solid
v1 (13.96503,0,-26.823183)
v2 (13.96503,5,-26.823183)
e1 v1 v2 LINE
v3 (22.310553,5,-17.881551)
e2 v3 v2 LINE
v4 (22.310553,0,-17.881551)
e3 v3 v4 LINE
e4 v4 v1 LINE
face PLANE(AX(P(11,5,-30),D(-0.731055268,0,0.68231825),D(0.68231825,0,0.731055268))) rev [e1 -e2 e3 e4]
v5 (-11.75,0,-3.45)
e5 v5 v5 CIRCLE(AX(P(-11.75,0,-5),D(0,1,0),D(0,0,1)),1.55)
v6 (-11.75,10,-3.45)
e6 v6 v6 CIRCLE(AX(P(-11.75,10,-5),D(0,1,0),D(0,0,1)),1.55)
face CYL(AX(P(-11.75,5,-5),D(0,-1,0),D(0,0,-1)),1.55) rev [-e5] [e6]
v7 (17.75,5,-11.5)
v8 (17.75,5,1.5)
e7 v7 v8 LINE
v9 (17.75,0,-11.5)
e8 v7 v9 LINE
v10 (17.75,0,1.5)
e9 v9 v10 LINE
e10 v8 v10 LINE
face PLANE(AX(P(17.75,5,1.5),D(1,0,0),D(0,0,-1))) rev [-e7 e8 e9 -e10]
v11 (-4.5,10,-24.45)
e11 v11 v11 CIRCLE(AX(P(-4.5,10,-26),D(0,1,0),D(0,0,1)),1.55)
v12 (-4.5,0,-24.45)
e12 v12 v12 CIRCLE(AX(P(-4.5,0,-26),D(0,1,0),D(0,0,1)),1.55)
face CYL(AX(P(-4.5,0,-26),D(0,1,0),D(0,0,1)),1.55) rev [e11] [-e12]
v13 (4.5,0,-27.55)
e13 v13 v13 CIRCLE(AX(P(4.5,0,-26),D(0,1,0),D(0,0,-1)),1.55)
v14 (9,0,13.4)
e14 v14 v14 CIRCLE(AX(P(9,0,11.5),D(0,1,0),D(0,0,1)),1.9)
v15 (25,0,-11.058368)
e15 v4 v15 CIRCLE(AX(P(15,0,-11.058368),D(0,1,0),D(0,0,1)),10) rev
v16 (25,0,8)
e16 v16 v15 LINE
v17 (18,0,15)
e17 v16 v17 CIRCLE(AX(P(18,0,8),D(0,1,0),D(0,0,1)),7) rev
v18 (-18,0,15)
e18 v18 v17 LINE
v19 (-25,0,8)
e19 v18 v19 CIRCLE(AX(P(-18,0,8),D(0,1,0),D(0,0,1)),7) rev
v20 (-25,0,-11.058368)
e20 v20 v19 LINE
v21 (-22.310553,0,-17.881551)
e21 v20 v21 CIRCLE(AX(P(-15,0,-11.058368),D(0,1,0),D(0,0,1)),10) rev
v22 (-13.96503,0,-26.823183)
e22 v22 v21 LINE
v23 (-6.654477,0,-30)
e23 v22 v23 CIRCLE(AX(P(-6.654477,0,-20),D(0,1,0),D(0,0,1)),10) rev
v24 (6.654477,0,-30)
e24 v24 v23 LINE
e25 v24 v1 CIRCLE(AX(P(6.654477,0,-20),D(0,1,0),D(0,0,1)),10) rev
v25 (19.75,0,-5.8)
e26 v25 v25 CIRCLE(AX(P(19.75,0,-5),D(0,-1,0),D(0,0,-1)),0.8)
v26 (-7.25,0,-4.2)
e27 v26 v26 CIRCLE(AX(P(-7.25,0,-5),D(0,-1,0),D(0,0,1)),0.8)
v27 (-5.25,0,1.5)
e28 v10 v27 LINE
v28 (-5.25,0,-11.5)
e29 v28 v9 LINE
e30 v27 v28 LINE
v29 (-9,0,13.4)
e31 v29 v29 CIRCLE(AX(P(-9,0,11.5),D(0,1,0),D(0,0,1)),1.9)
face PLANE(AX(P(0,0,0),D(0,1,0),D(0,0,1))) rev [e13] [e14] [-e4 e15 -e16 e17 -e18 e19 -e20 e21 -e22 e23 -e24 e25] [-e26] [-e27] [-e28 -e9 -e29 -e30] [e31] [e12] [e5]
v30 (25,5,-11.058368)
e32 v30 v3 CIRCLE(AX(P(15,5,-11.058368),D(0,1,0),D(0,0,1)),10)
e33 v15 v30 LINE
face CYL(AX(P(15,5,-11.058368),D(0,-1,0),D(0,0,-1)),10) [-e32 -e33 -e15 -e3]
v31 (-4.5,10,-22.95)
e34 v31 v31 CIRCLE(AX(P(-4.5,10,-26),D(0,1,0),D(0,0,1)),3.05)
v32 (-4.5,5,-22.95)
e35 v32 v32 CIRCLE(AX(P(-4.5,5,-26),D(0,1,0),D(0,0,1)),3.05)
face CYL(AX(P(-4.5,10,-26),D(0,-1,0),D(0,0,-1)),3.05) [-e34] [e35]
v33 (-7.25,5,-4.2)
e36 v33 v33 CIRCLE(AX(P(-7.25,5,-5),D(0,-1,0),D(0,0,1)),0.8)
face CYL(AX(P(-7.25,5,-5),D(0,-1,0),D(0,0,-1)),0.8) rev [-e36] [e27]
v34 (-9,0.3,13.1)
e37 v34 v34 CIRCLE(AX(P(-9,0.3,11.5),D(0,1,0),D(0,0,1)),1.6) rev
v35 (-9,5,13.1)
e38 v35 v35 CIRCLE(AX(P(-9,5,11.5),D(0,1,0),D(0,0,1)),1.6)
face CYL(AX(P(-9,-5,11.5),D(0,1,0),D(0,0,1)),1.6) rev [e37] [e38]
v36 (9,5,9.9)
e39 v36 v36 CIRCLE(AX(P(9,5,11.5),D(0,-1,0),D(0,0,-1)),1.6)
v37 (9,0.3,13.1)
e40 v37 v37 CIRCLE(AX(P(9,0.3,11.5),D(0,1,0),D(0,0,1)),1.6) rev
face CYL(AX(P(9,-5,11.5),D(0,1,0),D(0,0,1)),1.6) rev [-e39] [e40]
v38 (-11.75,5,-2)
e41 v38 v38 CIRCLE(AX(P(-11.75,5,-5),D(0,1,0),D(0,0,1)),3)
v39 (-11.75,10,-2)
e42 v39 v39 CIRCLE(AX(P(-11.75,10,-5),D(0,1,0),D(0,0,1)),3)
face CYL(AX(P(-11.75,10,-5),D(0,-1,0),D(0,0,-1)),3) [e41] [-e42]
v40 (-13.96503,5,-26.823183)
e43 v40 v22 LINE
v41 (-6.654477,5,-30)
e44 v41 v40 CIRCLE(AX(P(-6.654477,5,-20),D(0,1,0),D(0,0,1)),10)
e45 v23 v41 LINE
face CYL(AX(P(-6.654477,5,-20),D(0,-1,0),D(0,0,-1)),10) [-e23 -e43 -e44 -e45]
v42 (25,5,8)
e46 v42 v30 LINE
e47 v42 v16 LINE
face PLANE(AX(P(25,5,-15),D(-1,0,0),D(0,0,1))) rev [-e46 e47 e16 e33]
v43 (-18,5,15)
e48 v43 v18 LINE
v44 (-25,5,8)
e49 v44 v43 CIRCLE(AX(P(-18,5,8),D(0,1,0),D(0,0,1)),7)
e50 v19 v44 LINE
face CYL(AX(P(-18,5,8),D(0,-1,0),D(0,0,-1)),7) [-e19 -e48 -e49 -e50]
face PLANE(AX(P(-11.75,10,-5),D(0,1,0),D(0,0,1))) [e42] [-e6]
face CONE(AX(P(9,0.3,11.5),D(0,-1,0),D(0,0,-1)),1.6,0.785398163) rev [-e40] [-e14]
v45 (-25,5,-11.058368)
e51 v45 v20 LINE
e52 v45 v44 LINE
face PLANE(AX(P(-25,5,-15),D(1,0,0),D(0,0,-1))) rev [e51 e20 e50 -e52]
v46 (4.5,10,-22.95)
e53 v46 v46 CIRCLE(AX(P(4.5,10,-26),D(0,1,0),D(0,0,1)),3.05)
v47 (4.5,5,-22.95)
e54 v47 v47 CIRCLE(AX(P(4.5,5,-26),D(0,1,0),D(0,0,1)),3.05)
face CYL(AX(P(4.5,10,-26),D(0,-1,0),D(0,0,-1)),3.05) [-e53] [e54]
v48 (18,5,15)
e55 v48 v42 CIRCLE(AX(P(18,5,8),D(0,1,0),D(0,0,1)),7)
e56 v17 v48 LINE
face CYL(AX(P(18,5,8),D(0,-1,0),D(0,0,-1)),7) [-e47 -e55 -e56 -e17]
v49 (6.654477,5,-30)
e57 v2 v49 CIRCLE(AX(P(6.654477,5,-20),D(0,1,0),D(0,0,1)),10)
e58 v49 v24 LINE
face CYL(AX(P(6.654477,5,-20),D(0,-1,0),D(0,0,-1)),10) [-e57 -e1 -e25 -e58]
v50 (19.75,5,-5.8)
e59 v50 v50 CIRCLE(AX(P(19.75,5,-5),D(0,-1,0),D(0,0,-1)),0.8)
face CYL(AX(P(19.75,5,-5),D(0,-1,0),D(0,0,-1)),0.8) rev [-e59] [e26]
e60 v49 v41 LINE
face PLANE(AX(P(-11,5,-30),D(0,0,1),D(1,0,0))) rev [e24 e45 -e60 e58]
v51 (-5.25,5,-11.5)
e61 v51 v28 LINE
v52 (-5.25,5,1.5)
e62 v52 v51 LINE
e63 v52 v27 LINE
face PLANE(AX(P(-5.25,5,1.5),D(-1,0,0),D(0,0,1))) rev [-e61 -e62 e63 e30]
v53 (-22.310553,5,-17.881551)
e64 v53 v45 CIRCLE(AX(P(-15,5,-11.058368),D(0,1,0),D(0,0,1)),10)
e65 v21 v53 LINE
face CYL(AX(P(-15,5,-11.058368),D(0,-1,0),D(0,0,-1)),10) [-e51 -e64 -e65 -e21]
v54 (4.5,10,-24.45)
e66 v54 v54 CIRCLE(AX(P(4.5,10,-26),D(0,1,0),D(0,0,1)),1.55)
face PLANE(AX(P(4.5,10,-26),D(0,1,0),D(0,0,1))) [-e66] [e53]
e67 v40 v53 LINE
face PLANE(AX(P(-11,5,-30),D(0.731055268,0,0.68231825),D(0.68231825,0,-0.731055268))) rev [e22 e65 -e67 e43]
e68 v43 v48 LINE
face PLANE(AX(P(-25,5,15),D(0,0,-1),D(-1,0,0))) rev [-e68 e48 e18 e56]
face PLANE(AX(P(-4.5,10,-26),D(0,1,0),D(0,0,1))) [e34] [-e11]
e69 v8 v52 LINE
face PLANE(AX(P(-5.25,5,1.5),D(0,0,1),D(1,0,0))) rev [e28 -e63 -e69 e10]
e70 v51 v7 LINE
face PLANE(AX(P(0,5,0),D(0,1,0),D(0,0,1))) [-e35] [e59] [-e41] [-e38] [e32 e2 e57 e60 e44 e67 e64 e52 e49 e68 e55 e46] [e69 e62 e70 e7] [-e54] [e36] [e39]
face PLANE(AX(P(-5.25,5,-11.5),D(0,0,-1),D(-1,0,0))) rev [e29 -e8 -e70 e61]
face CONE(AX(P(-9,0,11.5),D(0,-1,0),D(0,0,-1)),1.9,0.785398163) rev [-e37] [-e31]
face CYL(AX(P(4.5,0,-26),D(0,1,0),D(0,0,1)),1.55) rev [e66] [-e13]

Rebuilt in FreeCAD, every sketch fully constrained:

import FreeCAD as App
import Part
import Sketcher

V = App.Vector
Q = App.Units.Quantity


def edges_at(feature, points):
    """Names of the edges that pass closest to the given points."""
    edges = feature.Shape.Edges
    near = lambda p: min(range(len(edges)), key=lambda i: edges[i].distToShape(Part.Vertex(*p))[0])
    return sorted({f"Edge{near(p) + 1}" for p in points})

doc = App.newDocument("Part")
body = doc.addObject("PartDesign::Body", "Body")

# Sketch on XZ plane
sketch1 = body.newObject("Sketcher::SketchObject", "Sketch")
sketch1.AttachmentSupport = (doc.getObject("XZ_Plane"), [""])
sketch1.MapMode = "FlatFace"
sketch1.addGeometry(Part.LineSegment(V(-11, -30, 0), V(-25, -15, 0)), False)
sketch1.addGeometry(Part.LineSegment(V(-25, -15, 0), V(-25, 15, 0)), False)
sketch1.addGeometry(Part.LineSegment(V(-25, 15, 0), V(25, 15, 0)), False)
sketch1.addGeometry(Part.LineSegment(V(25, 15, 0), V(25, -15, 0)), False)
sketch1.addGeometry(Part.LineSegment(V(25, -15, 0), V(11, -30, 0)), False)
sketch1.addGeometry(Part.LineSegment(V(11, -30, 0), V(-11, -30, 0)), False)
sketch1.addGeometry(Part.Circle(V(-11.8, -5, 0), V(0, 0, 1), 1.6), False)
sketch1.addGeometry(Part.Circle(V(11.8, -5, 0), V(0, 0, 1), 1.6), False)
sketch1.addConstraint(Sketcher.Constraint("Coincident", 0, 2, 1, 1))
sketch1.addConstraint(Sketcher.Constraint("Coincident", 1, 2, 2, 1))
sketch1.addConstraint(Sketcher.Constraint("Coincident", 2, 2, 3, 1))
sketch1.addConstraint(Sketcher.Constraint("Coincident", 3, 2, 4, 1))
sketch1.addConstraint(Sketcher.Constraint("Coincident", 4, 2, 5, 1))
sketch1.addConstraint(Sketcher.Constraint("Coincident", 5, 2, 0, 1))
sketch1.addConstraint(Sketcher.Constraint("Vertical", 1))
sketch1.addConstraint(Sketcher.Constraint("Horizontal", 2))
sketch1.addConstraint(Sketcher.Constraint("Vertical", 3))
sketch1.addConstraint(Sketcher.Constraint("Horizontal", 5))
sketch1.addConstraint(Sketcher.Constraint("Equal", 6, 7))
sketch1.addConstraint(Sketcher.Constraint("Symmetric", 0, 2, 2, 2, -1, 1))
sketch1.addConstraint(Sketcher.Constraint("Symmetric", 6, 3, 7, 3, -2))
sketch1.addConstraint(Sketcher.Constraint("Horizontal", 0, 2, 3, 2))
sketch1.addConstraint(Sketcher.Constraint("Equal", 0, 4))
sketch1.addConstraint(Sketcher.Constraint("Diameter", 6, Q("3.1 mm")))
sketch1.addConstraint(Sketcher.Constraint("DistanceX", 2, 1, 2, 2, Q("50 mm")))
sketch1.addConstraint(Sketcher.Constraint("DistanceX", 5, 2, 5, 1, Q("22 mm")))
sketch1.addConstraint(Sketcher.Constraint("DistanceY", 1, 1, 1, 2, Q("30 mm")))
sketch1.addConstraint(Sketcher.Constraint("DistanceY", 6, 3, -1, 1, Q("5 mm")))
sketch1.addConstraint(Sketcher.Constraint("DistanceY", 4, 2, -1, 1, Q("30 mm")))
sketch1.addConstraint(Sketcher.Constraint("DistanceX", 6, 3, 7, 3, Q("23.5 mm")))
pad1 = body.newObject("PartDesign::Pad", "Pad")
pad1.Profile = sketch1
pad1.Length = 5
pad1.Reversed = True

# Sketch on XZ plane
sketch2 = body.newObject("Sketcher::SketchObject", "Sketch001")
sketch2.AttachmentSupport = (doc.getObject("XZ_Plane"), [""])
sketch2.MapMode = "FlatFace"
sketch2.AttachmentOffset = App.Placement(V(0, 0, -5), App.Rotation())
sketch2.addGeometry(Part.Circle(V(-4.5, -26, 0), V(0, 0, 1), 1.6), False)
sketch2.addGeometry(Part.Circle(V(4.5, -26, 0), V(0, 0, 1), 1.6), False)
sketch2.addConstraint(Sketcher.Constraint("Equal", 0, 1))
sketch2.addConstraint(Sketcher.Constraint("Symmetric", 0, 3, 1, 3, -2))
sketch2.addConstraint(Sketcher.Constraint("Diameter", 0, Q("3.1 mm")))
sketch2.addConstraint(Sketcher.Constraint("DistanceY", 0, 3, -1, 1, Q("26 mm")))
sketch2.addConstraint(Sketcher.Constraint("DistanceX", 0, 3, 1, 3, Q("9 mm")))
pocket1 = body.newObject("PartDesign::Pocket", "Pocket")
pocket1.Profile = sketch2
pocket1.Length = 5
pocket1.Reversed = True
doc.recompute()

fillet = body.newObject("PartDesign::Fillet", "Fillet")
fillet.Base = (pocket1, edges_at(pocket1, [
    (-25, 2.5, -15),
    (-11, 2.5, -30),
    (11, 2.5, -30),
    (25, 2.5, -15),
]))
fillet.Radius = 10

# Sketch on XZ plane
sketch3 = body.newObject("Sketcher::SketchObject", "Sketch002")
sketch3.AttachmentSupport = (doc.getObject("XZ_Plane"), [""])
sketch3.MapMode = "FlatFace"
sketch3.addGeometry(Part.Circle(V(19.8, -5, 0), V(0, 0, 1), 0.8), False)
sketch3.addGeometry(Part.Circle(V(-7.2, -5, 0), V(0, 0, 1), 0.8), False)
sketch3.addGeometry(Part.LineSegment(V(-5.2, 1.5, 0), V(-5.2, -11.5, 0)), False)
sketch3.addGeometry(Part.LineSegment(V(-5.2, -11.5, 0), V(17.8, -11.5, 0)), False)
sketch3.addGeometry(Part.LineSegment(V(17.8, -11.5, 0), V(17.8, 1.5, 0)), False)
sketch3.addGeometry(Part.LineSegment(V(17.8, 1.5, 0), V(-5.2, 1.5, 0)), False)
sketch3.addGeometry(Part.Circle(V(11.8, -5, 0), V(0, 0, 1), 1.6), False)
sketch3.addConstraint(Sketcher.Constraint("Coincident", 2, 2, 3, 1))
sketch3.addConstraint(Sketcher.Constraint("Coincident", 3, 2, 4, 1))
sketch3.addConstraint(Sketcher.Constraint("Coincident", 4, 2, 5, 1))
sketch3.addConstraint(Sketcher.Constraint("Coincident", 5, 2, 2, 1))
sketch3.addConstraint(Sketcher.Constraint("Vertical", 2))
sketch3.addConstraint(Sketcher.Constraint("Horizontal", 3))
sketch3.addConstraint(Sketcher.Constraint("Vertical", 4))
sketch3.addConstraint(Sketcher.Constraint("Horizontal", 5))
sketch3.addConstraint(Sketcher.Constraint("Equal", 0, 1))
sketch3.addConstraint(Sketcher.Constraint("Horizontal", 0, 3, 1, 3))
sketch3.addConstraint(Sketcher.Constraint("Horizontal", 1, 3, 6, 3))
sketch3.addConstraint(Sketcher.Constraint("Diameter", 0, Q("1.6 mm")))
sketch3.addConstraint(Sketcher.Constraint("Diameter", 6, Q("3.1 mm")))
sketch3.addConstraint(Sketcher.Constraint("DistanceX", 3, 1, 3, 2, Q("23 mm")))
sketch3.addConstraint(Sketcher.Constraint("DistanceY", 2, 2, 2, 1, Q("13 mm")))
sketch3.addConstraint(Sketcher.Constraint("DistanceY", 0, 3, -1, 1, Q("5 mm")))
sketch3.addConstraint(Sketcher.Constraint("DistanceX", 1, 3, 0, 3, Q("27 mm")))
sketch3.addConstraint(Sketcher.Constraint("DistanceX", 6, 3, 0, 3, Q("8 mm")))
sketch3.addConstraint(Sketcher.Constraint("DistanceX", 1, 3, 2, 2, Q("2 mm")))
sketch3.addConstraint(Sketcher.Constraint("DistanceY", 2, 2, -1, 1, Q("11.5 mm")))
sketch3.addConstraint(Sketcher.Constraint("DistanceX", -1, 1, 0, 3, Q("19.75 mm")))
pocket2 = body.newObject("PartDesign::Pocket", "Pocket001")
pocket2.Profile = sketch3
pocket2.Length = 5

# Sketch on XZ plane
sketch4 = body.newObject("Sketcher::SketchObject", "Sketch003")
sketch4.AttachmentSupport = (doc.getObject("XZ_Plane"), [""])
sketch4.MapMode = "FlatFace"
sketch4.AttachmentOffset = App.Placement(V(0, 0, -10), App.Rotation())
sketch4.addGeometry(Part.Circle(V(-4.5, -26, 0), V(0, 0, 1), 3), False)
sketch4.addGeometry(Part.Circle(V(-4.5, -26, 0), V(0, 0, 1), 1.6), False)
sketch4.addGeometry(Part.Circle(V(4.5, -26, 0), V(0, 0, 1), 3), False)
sketch4.addGeometry(Part.Circle(V(4.5, -26, 0), V(0, 0, 1), 1.6), False)
sketch4.addGeometry(Part.Circle(V(-11.8, -5, 0), V(0, 0, 1), 3), False)
sketch4.addConstraint(Sketcher.Constraint("Coincident", 1, 3, 0, 3))
sketch4.addConstraint(Sketcher.Constraint("Coincident", 3, 3, 2, 3))
sketch4.addConstraint(Sketcher.Constraint("Equal", 0, 2))
sketch4.addConstraint(Sketcher.Constraint("Equal", 1, 3))
sketch4.addConstraint(Sketcher.Constraint("Symmetric", 0, 3, 2, 3, -2))
sketch4.addConstraint(Sketcher.Constraint("Diameter", 4, Q("6 mm")))
sketch4.addConstraint(Sketcher.Constraint("Diameter", 0, Q("6.1 mm")))
sketch4.addConstraint(Sketcher.Constraint("Diameter", 1, Q("3.1 mm")))
sketch4.addConstraint(Sketcher.Constraint("DistanceY", 0, 3, -1, 1, Q("26 mm")))
sketch4.addConstraint(Sketcher.Constraint("DistanceY", 4, 3, -1, 1, Q("5 mm")))
sketch4.addConstraint(Sketcher.Constraint("DistanceX", 0, 3, 2, 3, Q("9 mm")))
sketch4.addConstraint(Sketcher.Constraint("DistanceX", 4, 3, -1, 1, Q("11.75 mm")))
pad2 = body.newObject("PartDesign::Pad", "Pad001")
pad2.Profile = sketch4
pad2.Length = 5

# Sketch on XZ plane
sketch5 = body.newObject("Sketcher::SketchObject", "Sketch004")
sketch5.AttachmentSupport = (doc.getObject("XZ_Plane"), [""])
sketch5.MapMode = "FlatFace"
sketch5.addGeometry(Part.Circle(V(-11.8, -5, 0), V(0, 0, 1), 1.6), False)
sketch5.addConstraint(Sketcher.Constraint("Diameter", 0, Q("3.1 mm")))
sketch5.addConstraint(Sketcher.Constraint("DistanceY", 0, 3, -1, 1, Q("5 mm")))
sketch5.addConstraint(Sketcher.Constraint("DistanceX", 0, 3, -1, 1, Q("11.75 mm")))
pocket3 = body.newObject("PartDesign::Pocket", "Pocket002")
pocket3.Profile = sketch5
pocket3.Length = 11

# Sketch on XZ plane
sketch6 = body.newObject("Sketcher::SketchObject", "Sketch005")
sketch6.AttachmentSupport = (doc.getObject("XZ_Plane"), [""])
sketch6.MapMode = "FlatFace"
sketch6.AttachmentOffset = App.Placement(V(0, 0, -5), App.Rotation())
sketch6.addGeometry(Part.Circle(V(-9, 11.5, 0), V(0, 0, 1), 1.6), False)
sketch6.addGeometry(Part.Circle(V(9, 11.5, 0), V(0, 0, 1), 1.6), False)
sketch6.addConstraint(Sketcher.Constraint("Equal", 0, 1))
sketch6.addConstraint(Sketcher.Constraint("Symmetric", 0, 3, 1, 3, -2))
sketch6.addConstraint(Sketcher.Constraint("Diameter", 0, Q("3.2 mm")))
sketch6.addConstraint(Sketcher.Constraint("DistanceX", 0, 3, -1, 1, Q("9 mm")))
sketch6.addConstraint(Sketcher.Constraint("DistanceY", -1, 1, 0, 3, Q("11.5 mm")))
pocket4 = body.newObject("PartDesign::Pocket", "Pocket003")
pocket4.Profile = sketch6
pocket4.Length = 10
pocket4.Reversed = True
doc.recompute()

chamfer = body.newObject("PartDesign::Chamfer", "Chamfer")
chamfer.Base = (pocket4, edges_at(pocket4, [(-9, 0, 9.9), (9, 0, 9.9)]))
chamfer.Size = 0.3
doc.recompute()

fillet2 = body.newObject("PartDesign::Fillet", "Fillet001")
fillet2.Base = (chamfer, edges_at(chamfer, [(25, 2.5, 15), (-25, 2.5, 15)]))
fillet2.Radius = 7

doc.recompute()
